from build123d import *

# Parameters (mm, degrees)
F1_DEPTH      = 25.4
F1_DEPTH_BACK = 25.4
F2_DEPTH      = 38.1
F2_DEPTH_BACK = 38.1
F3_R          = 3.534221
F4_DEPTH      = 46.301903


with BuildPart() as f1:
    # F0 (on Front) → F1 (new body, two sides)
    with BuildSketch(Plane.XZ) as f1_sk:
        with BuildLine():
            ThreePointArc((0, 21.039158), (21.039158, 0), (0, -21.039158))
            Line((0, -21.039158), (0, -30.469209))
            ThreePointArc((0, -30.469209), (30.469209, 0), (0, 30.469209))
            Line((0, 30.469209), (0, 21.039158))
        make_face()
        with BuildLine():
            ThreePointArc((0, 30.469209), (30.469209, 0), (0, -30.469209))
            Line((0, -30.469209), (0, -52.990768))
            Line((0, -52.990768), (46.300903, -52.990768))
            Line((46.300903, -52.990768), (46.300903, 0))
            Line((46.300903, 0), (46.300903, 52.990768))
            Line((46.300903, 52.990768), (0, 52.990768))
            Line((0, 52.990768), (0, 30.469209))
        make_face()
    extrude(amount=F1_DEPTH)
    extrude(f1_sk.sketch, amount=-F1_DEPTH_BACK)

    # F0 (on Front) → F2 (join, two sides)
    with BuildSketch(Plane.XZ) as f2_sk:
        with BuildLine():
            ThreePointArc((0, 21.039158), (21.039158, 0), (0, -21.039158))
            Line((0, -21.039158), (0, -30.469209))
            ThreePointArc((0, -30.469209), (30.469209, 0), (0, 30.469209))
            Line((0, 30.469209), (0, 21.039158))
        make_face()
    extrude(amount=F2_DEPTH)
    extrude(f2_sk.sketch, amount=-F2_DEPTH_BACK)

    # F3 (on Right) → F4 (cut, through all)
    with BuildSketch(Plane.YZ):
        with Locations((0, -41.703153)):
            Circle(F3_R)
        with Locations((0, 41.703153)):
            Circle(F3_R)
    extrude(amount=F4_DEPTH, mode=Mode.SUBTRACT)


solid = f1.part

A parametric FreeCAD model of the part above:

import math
import FreeCAD as App
import Part
import Sketcher
from FreeCAD import Vector
Q = App.Units.Quantity

doc = App.newDocument("Part")
body = doc.addObject("PartDesign::Body", "Body")

# Sketch on XZ plane
sketch1 = body.newObject("Sketcher::SketchObject", "Sketch")
sketch1.AttachmentSupport = (doc.getObject("XZ_Plane"), [""])
sketch1.MapMode = "FlatFace"
sketch1.addGeometry([
    Part.ArcOfCircle(Part.Circle(Vector(0, 0, 0), Vector(0, 0, 1), 21), math.radians(-90), math.radians(90)),  # 0
    Part.LineSegment(Vector(0, -21, 0), Vector(0, -53, 0)),  # 1
    Part.LineSegment(Vector(0, -53, 0), Vector(46, -53, 0)),  # 2
    Part.LineSegment(Vector(46, -53, 0), Vector(46, 53, 0)),  # 3
    Part.LineSegment(Vector(46, 53, 0), Vector(0, 53, 0)),  # 4
    Part.LineSegment(Vector(0, 53, 0), Vector(0, 21, 0)),  # 5
], False)
sketch1.addConstraint([
    Sketcher.Constraint("Coincident", 0, 1, 1, 1),
    Sketcher.Constraint("Coincident", 1, 2, 2, 1),
    Sketcher.Constraint("Coincident", 2, 2, 3, 1),
    Sketcher.Constraint("Coincident", 3, 2, 4, 1),
    Sketcher.Constraint("Coincident", 4, 2, 5, 1),
    Sketcher.Constraint("Coincident", 5, 2, 0, 2),
    Sketcher.Constraint("Vertical", 1),
    Sketcher.Constraint("Horizontal", 2),
    Sketcher.Constraint("Vertical", 3),
    Sketcher.Constraint("Horizontal", 4),
    Sketcher.Constraint("Vertical", 5),
    Sketcher.Constraint("Coincident", 0, 3, -1, 1),
    Sketcher.Constraint("Symmetric", 1, 2, 4, 2, -1, 1),
    Sketcher.Constraint("PointOnObject", 0, 1, -2),
    Sketcher.Constraint("Radius", 0, 21.039158),
    Sketcher.Constraint("DistanceY", 1, 2, 1, 1, 31.95161),
    Sketcher.Constraint("DistanceX", 2, 1, 2, 2, 46.300903),
])
pad1 = body.newObject("PartDesign::Pad", "Pad")
pad1.Profile = sketch1
pad1.Type = "TwoLengths"
pad1.Length = Q("1 in")
pad1.Length2 = Q("1 in")

# Sketch on XZ plane
sketch2 = body.newObject("Sketcher::SketchObject", "Sketch001")
sketch2.AttachmentSupport = (doc.getObject("XZ_Plane"), [""])
sketch2.MapMode = "FlatFace"
sketch2.addGeometry([
    Part.ArcOfCircle(Part.Circle(Vector(0, 0, 0), Vector(0, 0, 1), 21), math.radians(-90), math.radians(90)),
    Part.LineSegment(Vector(0, -21, 0), Vector(0, -30, 0)),
    Part.ArcOfCircle(Part.Circle(Vector(0, 0, 0), Vector(0, 0, 1), 30), math.radians(-90), math.radians(90)),
    Part.LineSegment(Vector(0, 30, 0), Vector(0, 21, 0)),
], False)
sketch2.addConstraint([
    Sketcher.Constraint("Coincident", 0, 1, 1, 1),
    Sketcher.Constraint("Coincident", 1, 2, 2, 1),
    Sketcher.Constraint("Coincident", 2, 2, 3, 1),
    Sketcher.Constraint("Coincident", 3, 2, 0, 2),
    Sketcher.Constraint("Vertical", 1),
    Sketcher.Constraint("Vertical", 3),
    Sketcher.Constraint("Coincident", 0, 3, -1, 1),
    Sketcher.Constraint("Coincident", 2, 3, -1, 1),
    Sketcher.Constraint("PointOnObject", 0, 1, -2),
    Sketcher.Constraint("PointOnObject", 2, 2, -2),
    Sketcher.Constraint("Radius", 0, 21.039158),
    Sketcher.Constraint("Radius", 2, 30.469209),
])
pad2 = body.newObject("PartDesign::Pad", "Pad001")
pad2.Profile = sketch2
pad2.Type = "TwoLengths"
pad2.Length = Q("1.5 in")
pad2.Length2 = Q("1.5 in")

# Sketch on YZ plane
sketch3 = body.newObject("Sketcher::SketchObject", "Sketch002")
sketch3.AttachmentSupport = (doc.getObject("YZ_Plane"), [""])
sketch3.MapMode = "FlatFace"
sketch3.addGeometry([
    Part.Circle(Vector(0, -41.7, 0), Vector(0, 0, 1), 3.5),
    Part.Circle(Vector(0, 41.7, 0), Vector(0, 0, 1), 3.5),
], False)
sketch3.addConstraint([
    Sketcher.Constraint("Equal", 0, 1),
    Sketcher.Constraint("Symmetric", 0, 3, 1, 3, -1, 1),
    Sketcher.Constraint("PointOnObject", 0, 3, -2),
    Sketcher.Constraint("Diameter", 0, 7.068442),
    Sketcher.Constraint("DistanceY", 0, 3, -1, 1, 41.703153),
])
pocket1 = body.newObject("PartDesign::Pocket", "Pocket")
pocket1.Profile = sketch3
pocket1.Type = "ThroughAll"
pocket1.Reversed = True

doc.recompute()
